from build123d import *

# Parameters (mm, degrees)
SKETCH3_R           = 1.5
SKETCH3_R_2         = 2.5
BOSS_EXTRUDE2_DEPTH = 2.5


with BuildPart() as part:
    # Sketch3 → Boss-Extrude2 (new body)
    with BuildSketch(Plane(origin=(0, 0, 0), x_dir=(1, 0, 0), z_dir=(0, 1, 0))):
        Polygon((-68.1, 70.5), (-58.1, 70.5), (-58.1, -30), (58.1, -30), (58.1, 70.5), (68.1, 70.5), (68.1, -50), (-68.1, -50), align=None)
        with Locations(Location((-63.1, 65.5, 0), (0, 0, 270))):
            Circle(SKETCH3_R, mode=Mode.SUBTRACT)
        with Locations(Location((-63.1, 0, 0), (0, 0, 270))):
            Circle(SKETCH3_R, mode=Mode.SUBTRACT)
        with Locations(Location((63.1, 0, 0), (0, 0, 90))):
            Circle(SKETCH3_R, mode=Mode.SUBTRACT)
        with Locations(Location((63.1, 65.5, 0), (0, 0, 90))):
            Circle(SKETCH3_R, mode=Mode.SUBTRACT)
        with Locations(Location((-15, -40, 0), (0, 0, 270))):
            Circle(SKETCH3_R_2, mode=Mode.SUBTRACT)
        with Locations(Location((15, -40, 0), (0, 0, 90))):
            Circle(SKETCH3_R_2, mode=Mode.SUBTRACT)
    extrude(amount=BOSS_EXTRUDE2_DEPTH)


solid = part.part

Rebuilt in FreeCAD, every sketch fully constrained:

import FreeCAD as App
import Part
import Sketcher

V = App.Vector
Q = App.Units.Quantity


def add_polygon(sketch, points):
    """Adds a closed chain of lines whose ends are joined by coincident constraints."""
    first, n = sketch.GeometryCount, len(points)
    for a, b in zip(points, points[1:] + points[:1]):
        sketch.addGeometry(Part.LineSegment(App.Vector(*a, 0), App.Vector(*b, 0)), False)
    for i in range(n):
        sketch.addConstraint(Sketcher.Constraint("Coincident", first + i, 2, first + (i + 1) % n, 1))

doc = App.newDocument("Part")
params = doc.addObject("Spreadsheet::Sheet", "Params")
for row, (alias, value) in enumerate([
    ("sketch1_diameter", "5 mm"),
    ("sketch1_diameter2", "3 mm"),
    ("sketch1_width", "10 mm"),
    ("sketch1_width2", "136.2 mm"),
    ("sketch1_height", "120.5 mm"),
    ("pad1_length", "2.5 mm"),
], start=1):
    params.set(f"A{row}", alias)
    params.set(f"B{row}", "=" + value)
    params.setAlias(f"B{row}", alias)

body = doc.addObject("PartDesign::Body", "Body")

# Sketch on XZ plane
sketch1 = body.newObject("Sketcher::SketchObject", "Sketch")
sketch1.AttachmentSupport = (doc.getObject("XZ_Plane"), [""])
sketch1.MapMode = "FlatFace"
add_polygon(sketch1, [(-58.1, -70.5), (-68.1, -70.5), (-68.1, 50), (68.1, 50), (68.1, -70.5), (58.1, -70.5), (58.1, 30), (-58.1, 30)])  # lines 0-7
sketch1.addGeometry(Part.Circle(V(15, 40, 0), V(0, 0, 1), 2.5), False)  # 8
sketch1.addGeometry(Part.Circle(V(63.1, 0, 0), V(0, 0, 1), 1.5), False)  # 9
sketch1.addGeometry(Part.Circle(V(-15, 40, 0), V(0, 0, 1), 2.5), False)  # 10
sketch1.addGeometry(Part.Circle(V(-63.1, 0, 0), V(0, 0, 1), 1.5), False)  # 11
sketch1.addGeometry(Part.Circle(V(63.1, -65.5, 0), V(0, 0, 1), 1.5), False)  # 12
sketch1.addGeometry(Part.Circle(V(-63.1, -65.5, 0), V(0, 0, 1), 1.5), False)  # 13
sketch1.addConstraint([
    Sketcher.Constraint("Horizontal", 0),
    Sketcher.Constraint("Vertical", 1),
    Sketcher.Constraint("Horizontal", 2),
    Sketcher.Constraint("Vertical", 3),
    Sketcher.Constraint("Horizontal", 4),
    Sketcher.Constraint("Vertical", 5),
    Sketcher.Constraint("Horizontal", 6),
    Sketcher.Constraint("Vertical", 7),
    Sketcher.Constraint("Equal", 8, 10),
    Sketcher.Constraint("Equal", 9, 11),
    Sketcher.Constraint("Equal", 11, 12),
    Sketcher.Constraint("Equal", 12, 13),
    Sketcher.Constraint("Symmetric", 9, 3, 11, 3, -1, 1),
    Sketcher.Constraint("Symmetric", 8, 3, 10, 3, -2),
    Sketcher.Constraint("Symmetric", 12, 3, 13, 3, -2),
    Sketcher.Constraint("Symmetric", 0, 2, 3, 2, -2),
    Sketcher.Constraint("PointOnObject", 9, 3, -1),
    Sketcher.Constraint("Vertical", 9, 3, 12, 3),
    Sketcher.Constraint("Equal", 0, 4),
    Sketcher.Constraint("Diameter", 8, Q("5 mm")),
    Sketcher.Constraint("Diameter", 9, Q("3 mm")),
    Sketcher.Constraint("DistanceX", 0, 2, 0, 1, Q("10 mm")),
    Sketcher.Constraint("DistanceX", 2, 1, 2, 2, Q("136.2 mm")),
    Sketcher.Constraint("DistanceY", 1, 1, 1, 2, Q("120.5 mm")),
    Sketcher.Constraint("DistanceY", 5, 1, 5, 2, Q("100.5 mm")),
    Sketcher.Constraint("DistanceX", -1, 1, 8, 3, Q("15 mm")),
    Sketcher.Constraint("DistanceY", -1, 1, 8, 3, Q("40 mm")),
    Sketcher.Constraint("DistanceY", -1, 1, 1, 2, Q("50 mm")),
    Sketcher.Constraint("DistanceX", 0, 2, 13, 3, Q("5 mm")),
    Sketcher.Constraint("DistanceY", 0, 2, 13, 3, Q("5 mm")),
])
sketch1.setExpression("Constraints[27]", "Params.sketch1_diameter")
sketch1.setExpression("Constraints[28]", "Params.sketch1_diameter2")
sketch1.setExpression("Constraints[29]", "Params.sketch1_width")
sketch1.setExpression("Constraints[30]", "Params.sketch1_width2")
sketch1.setExpression("Constraints[31]", "Params.sketch1_height")
pad1 = body.newObject("PartDesign::Pad", "Pad")
pad1.Profile = sketch1
pad1.setExpression("Length", "Params.pad1_length")
pad1.Reversed = True

doc.recompute()
